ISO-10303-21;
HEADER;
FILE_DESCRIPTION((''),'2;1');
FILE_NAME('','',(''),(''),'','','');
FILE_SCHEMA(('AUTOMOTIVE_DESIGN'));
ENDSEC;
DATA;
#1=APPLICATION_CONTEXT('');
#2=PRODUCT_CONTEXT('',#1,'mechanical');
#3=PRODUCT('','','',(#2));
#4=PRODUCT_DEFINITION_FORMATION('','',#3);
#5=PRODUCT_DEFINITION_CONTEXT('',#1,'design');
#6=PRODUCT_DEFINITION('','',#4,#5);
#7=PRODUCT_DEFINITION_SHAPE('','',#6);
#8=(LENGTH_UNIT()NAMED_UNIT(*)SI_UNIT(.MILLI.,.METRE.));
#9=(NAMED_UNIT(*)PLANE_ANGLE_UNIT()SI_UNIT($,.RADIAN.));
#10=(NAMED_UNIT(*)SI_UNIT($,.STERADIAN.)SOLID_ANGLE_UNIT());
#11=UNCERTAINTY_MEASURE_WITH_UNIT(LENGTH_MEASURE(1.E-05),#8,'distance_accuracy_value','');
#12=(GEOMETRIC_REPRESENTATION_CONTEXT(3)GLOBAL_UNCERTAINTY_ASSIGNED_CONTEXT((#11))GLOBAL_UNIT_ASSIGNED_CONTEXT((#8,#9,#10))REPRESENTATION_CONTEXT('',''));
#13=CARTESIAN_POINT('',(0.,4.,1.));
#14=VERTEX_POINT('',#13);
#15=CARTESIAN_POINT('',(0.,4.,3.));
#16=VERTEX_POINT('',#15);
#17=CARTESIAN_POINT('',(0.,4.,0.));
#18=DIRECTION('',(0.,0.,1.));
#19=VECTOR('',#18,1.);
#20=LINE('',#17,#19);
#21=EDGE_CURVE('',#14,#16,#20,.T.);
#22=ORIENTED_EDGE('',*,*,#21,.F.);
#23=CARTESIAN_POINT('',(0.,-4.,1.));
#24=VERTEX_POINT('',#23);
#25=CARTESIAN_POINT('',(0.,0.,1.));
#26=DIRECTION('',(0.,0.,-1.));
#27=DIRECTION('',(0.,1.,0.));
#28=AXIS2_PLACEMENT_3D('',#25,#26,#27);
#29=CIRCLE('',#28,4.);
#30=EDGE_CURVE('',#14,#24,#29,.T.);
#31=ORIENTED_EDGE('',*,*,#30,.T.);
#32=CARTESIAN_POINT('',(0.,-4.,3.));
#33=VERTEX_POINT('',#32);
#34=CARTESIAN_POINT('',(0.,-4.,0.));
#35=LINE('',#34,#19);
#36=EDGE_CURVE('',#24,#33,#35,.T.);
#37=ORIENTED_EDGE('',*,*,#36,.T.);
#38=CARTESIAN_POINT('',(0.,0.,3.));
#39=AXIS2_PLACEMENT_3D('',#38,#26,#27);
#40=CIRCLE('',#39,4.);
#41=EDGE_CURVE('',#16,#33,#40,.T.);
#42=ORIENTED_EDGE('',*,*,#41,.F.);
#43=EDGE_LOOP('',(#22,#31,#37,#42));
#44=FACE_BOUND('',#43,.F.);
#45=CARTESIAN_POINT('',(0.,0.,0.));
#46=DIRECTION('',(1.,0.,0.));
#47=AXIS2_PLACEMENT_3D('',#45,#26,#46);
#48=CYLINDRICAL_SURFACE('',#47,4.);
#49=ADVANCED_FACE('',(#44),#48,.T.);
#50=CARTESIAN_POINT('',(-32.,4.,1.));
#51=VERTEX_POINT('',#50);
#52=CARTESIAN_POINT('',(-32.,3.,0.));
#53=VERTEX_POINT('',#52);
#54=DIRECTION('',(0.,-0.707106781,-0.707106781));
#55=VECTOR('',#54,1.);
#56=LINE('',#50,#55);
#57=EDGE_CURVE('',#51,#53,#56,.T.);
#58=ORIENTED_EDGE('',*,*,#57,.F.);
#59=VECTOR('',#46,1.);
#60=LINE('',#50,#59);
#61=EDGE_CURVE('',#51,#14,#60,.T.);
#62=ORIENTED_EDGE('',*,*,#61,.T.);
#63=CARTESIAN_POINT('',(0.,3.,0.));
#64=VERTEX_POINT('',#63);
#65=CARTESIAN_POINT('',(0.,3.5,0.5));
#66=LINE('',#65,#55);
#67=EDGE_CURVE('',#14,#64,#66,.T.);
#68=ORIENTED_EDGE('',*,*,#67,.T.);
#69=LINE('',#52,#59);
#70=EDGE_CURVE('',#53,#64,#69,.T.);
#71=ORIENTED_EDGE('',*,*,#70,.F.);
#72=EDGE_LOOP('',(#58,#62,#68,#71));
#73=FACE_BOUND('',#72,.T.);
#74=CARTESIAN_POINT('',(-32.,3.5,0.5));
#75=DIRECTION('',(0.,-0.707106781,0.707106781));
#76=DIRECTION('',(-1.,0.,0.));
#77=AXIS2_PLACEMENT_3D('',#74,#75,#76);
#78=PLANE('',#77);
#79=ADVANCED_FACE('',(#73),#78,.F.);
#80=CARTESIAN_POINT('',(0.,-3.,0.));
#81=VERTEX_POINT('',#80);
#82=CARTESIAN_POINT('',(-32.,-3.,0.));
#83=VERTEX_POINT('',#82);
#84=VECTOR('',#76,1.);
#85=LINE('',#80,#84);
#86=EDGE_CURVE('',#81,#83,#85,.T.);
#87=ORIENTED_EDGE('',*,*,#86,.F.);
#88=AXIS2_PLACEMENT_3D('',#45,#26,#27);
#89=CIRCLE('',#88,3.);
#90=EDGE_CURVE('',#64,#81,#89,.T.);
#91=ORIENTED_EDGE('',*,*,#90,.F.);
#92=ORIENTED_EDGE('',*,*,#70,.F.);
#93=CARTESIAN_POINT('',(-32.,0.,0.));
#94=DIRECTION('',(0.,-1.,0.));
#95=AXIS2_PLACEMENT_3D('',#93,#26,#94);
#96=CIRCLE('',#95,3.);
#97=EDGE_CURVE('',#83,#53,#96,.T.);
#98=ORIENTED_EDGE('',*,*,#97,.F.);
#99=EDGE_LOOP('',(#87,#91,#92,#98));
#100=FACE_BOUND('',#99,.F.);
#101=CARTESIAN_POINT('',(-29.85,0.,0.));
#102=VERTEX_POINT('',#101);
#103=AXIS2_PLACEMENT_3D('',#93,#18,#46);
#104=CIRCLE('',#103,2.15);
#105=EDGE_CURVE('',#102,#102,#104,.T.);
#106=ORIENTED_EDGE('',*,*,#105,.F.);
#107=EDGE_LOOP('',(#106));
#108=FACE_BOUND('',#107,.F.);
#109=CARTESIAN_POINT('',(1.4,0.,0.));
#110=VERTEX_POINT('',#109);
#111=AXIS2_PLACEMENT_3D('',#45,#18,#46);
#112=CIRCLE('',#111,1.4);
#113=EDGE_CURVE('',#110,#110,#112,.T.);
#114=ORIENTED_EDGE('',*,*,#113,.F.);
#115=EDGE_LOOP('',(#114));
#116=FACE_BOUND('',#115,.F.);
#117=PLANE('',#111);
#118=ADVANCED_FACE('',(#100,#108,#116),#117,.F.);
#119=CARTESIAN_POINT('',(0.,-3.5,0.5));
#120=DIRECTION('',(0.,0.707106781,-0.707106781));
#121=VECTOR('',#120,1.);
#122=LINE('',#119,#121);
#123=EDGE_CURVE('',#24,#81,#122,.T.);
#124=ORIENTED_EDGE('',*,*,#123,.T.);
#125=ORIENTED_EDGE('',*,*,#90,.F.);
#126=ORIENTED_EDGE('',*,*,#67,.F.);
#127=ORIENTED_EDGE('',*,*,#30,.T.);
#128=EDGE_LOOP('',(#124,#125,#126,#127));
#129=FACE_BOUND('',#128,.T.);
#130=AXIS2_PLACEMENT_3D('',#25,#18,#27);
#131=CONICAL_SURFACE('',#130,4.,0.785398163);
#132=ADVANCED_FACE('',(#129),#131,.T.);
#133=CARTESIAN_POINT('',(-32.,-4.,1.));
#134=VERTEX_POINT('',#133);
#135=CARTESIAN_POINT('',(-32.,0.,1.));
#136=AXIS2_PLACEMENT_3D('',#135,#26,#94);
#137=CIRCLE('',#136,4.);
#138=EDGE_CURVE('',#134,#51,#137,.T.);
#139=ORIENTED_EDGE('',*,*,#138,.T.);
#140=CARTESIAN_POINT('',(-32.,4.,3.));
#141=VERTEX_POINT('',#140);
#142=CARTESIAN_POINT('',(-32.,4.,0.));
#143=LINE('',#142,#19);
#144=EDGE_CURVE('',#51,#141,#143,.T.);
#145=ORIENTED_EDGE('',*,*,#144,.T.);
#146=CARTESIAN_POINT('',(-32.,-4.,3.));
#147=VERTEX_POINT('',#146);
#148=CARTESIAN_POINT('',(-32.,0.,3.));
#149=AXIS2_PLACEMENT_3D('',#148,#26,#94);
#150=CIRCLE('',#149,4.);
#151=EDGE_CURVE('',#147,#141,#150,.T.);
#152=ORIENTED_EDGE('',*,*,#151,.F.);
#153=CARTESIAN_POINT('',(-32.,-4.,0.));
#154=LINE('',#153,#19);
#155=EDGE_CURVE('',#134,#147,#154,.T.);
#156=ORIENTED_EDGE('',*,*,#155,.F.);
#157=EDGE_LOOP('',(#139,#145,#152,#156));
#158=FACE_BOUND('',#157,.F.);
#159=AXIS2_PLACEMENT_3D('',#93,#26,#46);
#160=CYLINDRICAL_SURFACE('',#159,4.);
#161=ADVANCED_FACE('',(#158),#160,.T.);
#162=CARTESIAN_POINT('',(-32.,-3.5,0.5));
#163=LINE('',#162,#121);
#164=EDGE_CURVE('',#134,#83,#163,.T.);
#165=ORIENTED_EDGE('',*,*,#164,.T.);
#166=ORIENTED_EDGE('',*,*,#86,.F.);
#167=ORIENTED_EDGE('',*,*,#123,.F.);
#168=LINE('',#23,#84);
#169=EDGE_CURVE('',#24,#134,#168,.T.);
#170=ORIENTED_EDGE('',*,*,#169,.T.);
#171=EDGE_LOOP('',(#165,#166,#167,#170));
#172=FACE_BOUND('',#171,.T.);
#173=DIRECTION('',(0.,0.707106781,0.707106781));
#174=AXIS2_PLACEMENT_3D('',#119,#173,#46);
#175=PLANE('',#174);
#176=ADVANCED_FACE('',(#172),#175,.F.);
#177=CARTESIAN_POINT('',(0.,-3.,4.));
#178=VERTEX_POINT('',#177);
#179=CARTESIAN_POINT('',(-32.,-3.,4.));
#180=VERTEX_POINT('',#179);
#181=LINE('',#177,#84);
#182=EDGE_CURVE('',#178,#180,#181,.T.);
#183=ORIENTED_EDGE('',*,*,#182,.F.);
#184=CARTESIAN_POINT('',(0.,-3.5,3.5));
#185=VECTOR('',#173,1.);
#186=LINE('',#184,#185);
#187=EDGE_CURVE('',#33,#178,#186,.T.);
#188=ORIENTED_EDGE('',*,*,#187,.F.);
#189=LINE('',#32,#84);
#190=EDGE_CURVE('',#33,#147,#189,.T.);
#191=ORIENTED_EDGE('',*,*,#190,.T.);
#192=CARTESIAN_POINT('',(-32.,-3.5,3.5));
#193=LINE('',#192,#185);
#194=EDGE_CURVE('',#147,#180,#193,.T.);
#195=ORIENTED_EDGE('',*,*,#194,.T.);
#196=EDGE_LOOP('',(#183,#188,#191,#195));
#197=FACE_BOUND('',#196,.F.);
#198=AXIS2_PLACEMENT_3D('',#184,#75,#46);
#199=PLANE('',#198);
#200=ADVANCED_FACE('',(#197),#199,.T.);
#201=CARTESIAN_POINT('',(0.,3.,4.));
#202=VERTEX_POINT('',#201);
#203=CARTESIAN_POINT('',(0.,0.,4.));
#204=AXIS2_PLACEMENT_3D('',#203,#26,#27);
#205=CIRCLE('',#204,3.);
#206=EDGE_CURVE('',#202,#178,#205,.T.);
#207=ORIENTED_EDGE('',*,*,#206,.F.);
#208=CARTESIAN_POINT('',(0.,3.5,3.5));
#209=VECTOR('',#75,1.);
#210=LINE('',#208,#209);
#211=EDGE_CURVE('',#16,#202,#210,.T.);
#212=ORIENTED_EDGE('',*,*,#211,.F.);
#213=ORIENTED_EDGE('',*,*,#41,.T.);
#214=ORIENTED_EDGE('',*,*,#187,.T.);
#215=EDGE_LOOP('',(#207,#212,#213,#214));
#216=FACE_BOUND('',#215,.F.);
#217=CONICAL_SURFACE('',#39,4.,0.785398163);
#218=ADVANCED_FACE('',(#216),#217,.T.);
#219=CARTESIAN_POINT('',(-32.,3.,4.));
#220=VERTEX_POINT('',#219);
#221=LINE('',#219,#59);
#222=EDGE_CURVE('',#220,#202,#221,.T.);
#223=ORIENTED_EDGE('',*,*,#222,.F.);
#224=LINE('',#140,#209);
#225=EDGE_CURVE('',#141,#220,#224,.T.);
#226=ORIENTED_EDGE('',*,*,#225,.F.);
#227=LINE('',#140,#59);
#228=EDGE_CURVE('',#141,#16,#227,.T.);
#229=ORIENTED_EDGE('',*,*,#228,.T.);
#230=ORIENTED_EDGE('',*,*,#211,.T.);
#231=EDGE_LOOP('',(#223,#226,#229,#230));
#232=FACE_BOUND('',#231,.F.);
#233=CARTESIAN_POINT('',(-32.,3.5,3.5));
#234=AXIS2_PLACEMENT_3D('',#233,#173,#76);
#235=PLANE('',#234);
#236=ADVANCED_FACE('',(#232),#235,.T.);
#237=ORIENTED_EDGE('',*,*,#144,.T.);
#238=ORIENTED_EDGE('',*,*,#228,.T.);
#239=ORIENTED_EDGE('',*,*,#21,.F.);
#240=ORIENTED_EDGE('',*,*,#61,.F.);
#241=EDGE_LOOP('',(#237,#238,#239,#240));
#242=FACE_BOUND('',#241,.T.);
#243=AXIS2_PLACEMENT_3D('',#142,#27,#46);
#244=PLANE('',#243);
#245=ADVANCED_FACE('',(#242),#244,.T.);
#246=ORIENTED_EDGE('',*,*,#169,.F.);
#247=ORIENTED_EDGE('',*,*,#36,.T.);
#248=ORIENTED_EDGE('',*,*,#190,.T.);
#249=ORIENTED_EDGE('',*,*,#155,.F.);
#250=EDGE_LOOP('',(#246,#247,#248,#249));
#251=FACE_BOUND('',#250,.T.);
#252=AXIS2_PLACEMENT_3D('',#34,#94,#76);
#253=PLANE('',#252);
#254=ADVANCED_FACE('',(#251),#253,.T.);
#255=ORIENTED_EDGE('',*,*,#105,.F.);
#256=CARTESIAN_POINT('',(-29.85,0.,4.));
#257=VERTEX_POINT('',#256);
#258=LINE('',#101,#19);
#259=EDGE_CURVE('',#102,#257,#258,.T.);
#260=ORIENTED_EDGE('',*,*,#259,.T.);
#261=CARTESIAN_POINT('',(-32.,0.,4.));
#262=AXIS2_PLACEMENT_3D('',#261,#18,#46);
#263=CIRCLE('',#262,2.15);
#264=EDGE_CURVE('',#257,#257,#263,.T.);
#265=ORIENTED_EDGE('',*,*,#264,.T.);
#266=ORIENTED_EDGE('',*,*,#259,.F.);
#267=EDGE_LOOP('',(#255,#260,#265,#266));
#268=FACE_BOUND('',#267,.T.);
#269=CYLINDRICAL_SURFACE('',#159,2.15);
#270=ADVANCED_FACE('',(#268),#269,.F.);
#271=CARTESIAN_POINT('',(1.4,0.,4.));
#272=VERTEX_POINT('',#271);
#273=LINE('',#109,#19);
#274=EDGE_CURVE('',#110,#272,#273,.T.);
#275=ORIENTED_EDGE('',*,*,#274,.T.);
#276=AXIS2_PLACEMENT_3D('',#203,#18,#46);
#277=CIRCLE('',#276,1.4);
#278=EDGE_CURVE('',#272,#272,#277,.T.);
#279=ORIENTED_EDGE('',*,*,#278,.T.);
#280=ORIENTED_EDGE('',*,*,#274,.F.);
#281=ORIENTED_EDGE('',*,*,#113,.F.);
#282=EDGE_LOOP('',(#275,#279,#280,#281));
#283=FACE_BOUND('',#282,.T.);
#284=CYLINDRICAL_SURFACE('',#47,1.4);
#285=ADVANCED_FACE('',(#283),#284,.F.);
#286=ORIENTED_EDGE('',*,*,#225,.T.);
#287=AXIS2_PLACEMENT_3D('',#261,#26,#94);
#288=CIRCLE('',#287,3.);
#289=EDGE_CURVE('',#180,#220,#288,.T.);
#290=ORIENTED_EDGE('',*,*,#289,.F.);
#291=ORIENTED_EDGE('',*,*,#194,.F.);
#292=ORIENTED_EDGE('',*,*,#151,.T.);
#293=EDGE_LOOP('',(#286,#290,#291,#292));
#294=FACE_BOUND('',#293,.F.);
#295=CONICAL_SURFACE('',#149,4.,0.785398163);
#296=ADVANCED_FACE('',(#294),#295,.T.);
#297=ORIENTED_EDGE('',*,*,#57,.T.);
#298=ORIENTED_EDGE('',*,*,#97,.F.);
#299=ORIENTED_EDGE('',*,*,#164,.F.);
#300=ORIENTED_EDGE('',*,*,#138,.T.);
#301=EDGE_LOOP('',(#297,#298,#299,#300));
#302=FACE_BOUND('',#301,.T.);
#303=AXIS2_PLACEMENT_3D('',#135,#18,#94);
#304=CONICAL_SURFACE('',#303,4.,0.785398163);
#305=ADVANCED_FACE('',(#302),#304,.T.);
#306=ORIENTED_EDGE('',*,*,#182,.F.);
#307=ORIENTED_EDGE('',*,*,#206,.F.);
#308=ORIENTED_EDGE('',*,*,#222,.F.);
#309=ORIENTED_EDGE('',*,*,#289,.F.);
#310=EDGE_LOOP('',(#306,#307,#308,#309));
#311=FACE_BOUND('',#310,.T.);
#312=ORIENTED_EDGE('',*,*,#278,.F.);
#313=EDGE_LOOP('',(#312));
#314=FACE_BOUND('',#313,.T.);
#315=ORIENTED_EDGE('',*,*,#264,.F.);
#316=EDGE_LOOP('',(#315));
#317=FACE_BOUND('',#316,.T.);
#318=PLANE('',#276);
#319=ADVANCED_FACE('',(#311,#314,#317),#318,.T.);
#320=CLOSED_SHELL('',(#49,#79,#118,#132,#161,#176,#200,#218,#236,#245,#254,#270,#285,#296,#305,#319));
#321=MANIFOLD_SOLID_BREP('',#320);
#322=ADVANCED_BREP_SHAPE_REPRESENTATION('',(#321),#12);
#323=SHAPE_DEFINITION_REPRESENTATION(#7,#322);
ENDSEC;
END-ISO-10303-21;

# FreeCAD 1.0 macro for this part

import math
import FreeCAD as App
import Part
import Sketcher
Q = App.Units.Quantity


def edges_at(feature, points):
    """Names of the edges that pass closest to the given points."""
    edges = feature.Shape.Edges
    near = lambda p: min(range(len(edges)), key=lambda i: edges[i].distToShape(Part.Vertex(*p))[0])
    return sorted({f"Edge{near(p) + 1}" for p in points})

doc = App.newDocument("Part")
body = doc.addObject("PartDesign::Body", "Body")

sketch1 = body.newObject("Sketcher::SketchObject", "Sketch")
sketch1.AttachmentSupport = (doc.getObject("XY_Plane"), [""])
sketch1.MapMode = "FlatFace"
sketch1.addGeometry(Part.ArcOfCircle(Part.Circle(App.Vector(0, 0, 0), App.Vector(0, 0, 1), 4), math.radians(-90), math.radians(90)), False)
sketch1.addGeometry(Part.LineSegment(App.Vector(0, 4, 0), App.Vector(-32, 4, 0)), False)
sketch1.addGeometry(Part.ArcOfCircle(Part.Circle(App.Vector(-32, 0, 0), App.Vector(0, 0, 1), 4), math.radians(90), math.radians(270)), False)
sketch1.addGeometry(Part.LineSegment(App.Vector(-32, -4, 0), App.Vector(0, -4, 0)), False)
sketch1.addGeometry(Part.Circle(App.Vector(0, 0, 0), App.Vector(0, 0, 1), 1.4), False)
sketch1.addGeometry(Part.Circle(App.Vector(-32, 0, 0), App.Vector(0, 0, 1), 2.15), False)
sketch1.addConstraint(Sketcher.Constraint("Tangent", 0, 2, 1, 1))
sketch1.addConstraint(Sketcher.Constraint("Tangent", 1, 2, 2, 1))
sketch1.addConstraint(Sketcher.Constraint("Tangent", 2, 2, 3, 1))
sketch1.addConstraint(Sketcher.Constraint("Tangent", 3, 2, 0, 1))
sketch1.addConstraint(Sketcher.Constraint("Horizontal", 1))
sketch1.addConstraint(Sketcher.Constraint("Horizontal", 3))
sketch1.addConstraint(Sketcher.Constraint("Coincident", 0, 3, -1, 1))
sketch1.addConstraint(Sketcher.Constraint("Coincident", 4, 3, -1, 1))
sketch1.addConstraint(Sketcher.Constraint("Coincident", 5, 3, 2, 3))
sketch1.addConstraint(Sketcher.Constraint("Radius", 0, Q("4 mm")))
sketch1.addConstraint(Sketcher.Constraint("Diameter", 4, Q("2.8 mm")))
sketch1.addConstraint(Sketcher.Constraint("Diameter", 5, Q("4.3 mm")))
sketch1.addConstraint(Sketcher.Constraint("DistanceX", 1, 2, 1, 1, Q("32 mm")))
pad1 = body.newObject("PartDesign::Pad", "Pad")
pad1.Profile = sketch1
pad1.Length = 4
doc.recompute()

chamfer = body.newObject("PartDesign::Chamfer", "Chamfer")
chamfer.Base = (pad1, edges_at(pad1, [
    (-16, -4, 4),
    (4, 0, 4),
    (-16, 4, 4),
    (-36, 0, 4),
    (-16, -4, 0),
    (-36, 0, 0),
    (-16, 4, 0),
    (4, 0, 0),
]))
chamfer.Size = 1

doc.recompute()
